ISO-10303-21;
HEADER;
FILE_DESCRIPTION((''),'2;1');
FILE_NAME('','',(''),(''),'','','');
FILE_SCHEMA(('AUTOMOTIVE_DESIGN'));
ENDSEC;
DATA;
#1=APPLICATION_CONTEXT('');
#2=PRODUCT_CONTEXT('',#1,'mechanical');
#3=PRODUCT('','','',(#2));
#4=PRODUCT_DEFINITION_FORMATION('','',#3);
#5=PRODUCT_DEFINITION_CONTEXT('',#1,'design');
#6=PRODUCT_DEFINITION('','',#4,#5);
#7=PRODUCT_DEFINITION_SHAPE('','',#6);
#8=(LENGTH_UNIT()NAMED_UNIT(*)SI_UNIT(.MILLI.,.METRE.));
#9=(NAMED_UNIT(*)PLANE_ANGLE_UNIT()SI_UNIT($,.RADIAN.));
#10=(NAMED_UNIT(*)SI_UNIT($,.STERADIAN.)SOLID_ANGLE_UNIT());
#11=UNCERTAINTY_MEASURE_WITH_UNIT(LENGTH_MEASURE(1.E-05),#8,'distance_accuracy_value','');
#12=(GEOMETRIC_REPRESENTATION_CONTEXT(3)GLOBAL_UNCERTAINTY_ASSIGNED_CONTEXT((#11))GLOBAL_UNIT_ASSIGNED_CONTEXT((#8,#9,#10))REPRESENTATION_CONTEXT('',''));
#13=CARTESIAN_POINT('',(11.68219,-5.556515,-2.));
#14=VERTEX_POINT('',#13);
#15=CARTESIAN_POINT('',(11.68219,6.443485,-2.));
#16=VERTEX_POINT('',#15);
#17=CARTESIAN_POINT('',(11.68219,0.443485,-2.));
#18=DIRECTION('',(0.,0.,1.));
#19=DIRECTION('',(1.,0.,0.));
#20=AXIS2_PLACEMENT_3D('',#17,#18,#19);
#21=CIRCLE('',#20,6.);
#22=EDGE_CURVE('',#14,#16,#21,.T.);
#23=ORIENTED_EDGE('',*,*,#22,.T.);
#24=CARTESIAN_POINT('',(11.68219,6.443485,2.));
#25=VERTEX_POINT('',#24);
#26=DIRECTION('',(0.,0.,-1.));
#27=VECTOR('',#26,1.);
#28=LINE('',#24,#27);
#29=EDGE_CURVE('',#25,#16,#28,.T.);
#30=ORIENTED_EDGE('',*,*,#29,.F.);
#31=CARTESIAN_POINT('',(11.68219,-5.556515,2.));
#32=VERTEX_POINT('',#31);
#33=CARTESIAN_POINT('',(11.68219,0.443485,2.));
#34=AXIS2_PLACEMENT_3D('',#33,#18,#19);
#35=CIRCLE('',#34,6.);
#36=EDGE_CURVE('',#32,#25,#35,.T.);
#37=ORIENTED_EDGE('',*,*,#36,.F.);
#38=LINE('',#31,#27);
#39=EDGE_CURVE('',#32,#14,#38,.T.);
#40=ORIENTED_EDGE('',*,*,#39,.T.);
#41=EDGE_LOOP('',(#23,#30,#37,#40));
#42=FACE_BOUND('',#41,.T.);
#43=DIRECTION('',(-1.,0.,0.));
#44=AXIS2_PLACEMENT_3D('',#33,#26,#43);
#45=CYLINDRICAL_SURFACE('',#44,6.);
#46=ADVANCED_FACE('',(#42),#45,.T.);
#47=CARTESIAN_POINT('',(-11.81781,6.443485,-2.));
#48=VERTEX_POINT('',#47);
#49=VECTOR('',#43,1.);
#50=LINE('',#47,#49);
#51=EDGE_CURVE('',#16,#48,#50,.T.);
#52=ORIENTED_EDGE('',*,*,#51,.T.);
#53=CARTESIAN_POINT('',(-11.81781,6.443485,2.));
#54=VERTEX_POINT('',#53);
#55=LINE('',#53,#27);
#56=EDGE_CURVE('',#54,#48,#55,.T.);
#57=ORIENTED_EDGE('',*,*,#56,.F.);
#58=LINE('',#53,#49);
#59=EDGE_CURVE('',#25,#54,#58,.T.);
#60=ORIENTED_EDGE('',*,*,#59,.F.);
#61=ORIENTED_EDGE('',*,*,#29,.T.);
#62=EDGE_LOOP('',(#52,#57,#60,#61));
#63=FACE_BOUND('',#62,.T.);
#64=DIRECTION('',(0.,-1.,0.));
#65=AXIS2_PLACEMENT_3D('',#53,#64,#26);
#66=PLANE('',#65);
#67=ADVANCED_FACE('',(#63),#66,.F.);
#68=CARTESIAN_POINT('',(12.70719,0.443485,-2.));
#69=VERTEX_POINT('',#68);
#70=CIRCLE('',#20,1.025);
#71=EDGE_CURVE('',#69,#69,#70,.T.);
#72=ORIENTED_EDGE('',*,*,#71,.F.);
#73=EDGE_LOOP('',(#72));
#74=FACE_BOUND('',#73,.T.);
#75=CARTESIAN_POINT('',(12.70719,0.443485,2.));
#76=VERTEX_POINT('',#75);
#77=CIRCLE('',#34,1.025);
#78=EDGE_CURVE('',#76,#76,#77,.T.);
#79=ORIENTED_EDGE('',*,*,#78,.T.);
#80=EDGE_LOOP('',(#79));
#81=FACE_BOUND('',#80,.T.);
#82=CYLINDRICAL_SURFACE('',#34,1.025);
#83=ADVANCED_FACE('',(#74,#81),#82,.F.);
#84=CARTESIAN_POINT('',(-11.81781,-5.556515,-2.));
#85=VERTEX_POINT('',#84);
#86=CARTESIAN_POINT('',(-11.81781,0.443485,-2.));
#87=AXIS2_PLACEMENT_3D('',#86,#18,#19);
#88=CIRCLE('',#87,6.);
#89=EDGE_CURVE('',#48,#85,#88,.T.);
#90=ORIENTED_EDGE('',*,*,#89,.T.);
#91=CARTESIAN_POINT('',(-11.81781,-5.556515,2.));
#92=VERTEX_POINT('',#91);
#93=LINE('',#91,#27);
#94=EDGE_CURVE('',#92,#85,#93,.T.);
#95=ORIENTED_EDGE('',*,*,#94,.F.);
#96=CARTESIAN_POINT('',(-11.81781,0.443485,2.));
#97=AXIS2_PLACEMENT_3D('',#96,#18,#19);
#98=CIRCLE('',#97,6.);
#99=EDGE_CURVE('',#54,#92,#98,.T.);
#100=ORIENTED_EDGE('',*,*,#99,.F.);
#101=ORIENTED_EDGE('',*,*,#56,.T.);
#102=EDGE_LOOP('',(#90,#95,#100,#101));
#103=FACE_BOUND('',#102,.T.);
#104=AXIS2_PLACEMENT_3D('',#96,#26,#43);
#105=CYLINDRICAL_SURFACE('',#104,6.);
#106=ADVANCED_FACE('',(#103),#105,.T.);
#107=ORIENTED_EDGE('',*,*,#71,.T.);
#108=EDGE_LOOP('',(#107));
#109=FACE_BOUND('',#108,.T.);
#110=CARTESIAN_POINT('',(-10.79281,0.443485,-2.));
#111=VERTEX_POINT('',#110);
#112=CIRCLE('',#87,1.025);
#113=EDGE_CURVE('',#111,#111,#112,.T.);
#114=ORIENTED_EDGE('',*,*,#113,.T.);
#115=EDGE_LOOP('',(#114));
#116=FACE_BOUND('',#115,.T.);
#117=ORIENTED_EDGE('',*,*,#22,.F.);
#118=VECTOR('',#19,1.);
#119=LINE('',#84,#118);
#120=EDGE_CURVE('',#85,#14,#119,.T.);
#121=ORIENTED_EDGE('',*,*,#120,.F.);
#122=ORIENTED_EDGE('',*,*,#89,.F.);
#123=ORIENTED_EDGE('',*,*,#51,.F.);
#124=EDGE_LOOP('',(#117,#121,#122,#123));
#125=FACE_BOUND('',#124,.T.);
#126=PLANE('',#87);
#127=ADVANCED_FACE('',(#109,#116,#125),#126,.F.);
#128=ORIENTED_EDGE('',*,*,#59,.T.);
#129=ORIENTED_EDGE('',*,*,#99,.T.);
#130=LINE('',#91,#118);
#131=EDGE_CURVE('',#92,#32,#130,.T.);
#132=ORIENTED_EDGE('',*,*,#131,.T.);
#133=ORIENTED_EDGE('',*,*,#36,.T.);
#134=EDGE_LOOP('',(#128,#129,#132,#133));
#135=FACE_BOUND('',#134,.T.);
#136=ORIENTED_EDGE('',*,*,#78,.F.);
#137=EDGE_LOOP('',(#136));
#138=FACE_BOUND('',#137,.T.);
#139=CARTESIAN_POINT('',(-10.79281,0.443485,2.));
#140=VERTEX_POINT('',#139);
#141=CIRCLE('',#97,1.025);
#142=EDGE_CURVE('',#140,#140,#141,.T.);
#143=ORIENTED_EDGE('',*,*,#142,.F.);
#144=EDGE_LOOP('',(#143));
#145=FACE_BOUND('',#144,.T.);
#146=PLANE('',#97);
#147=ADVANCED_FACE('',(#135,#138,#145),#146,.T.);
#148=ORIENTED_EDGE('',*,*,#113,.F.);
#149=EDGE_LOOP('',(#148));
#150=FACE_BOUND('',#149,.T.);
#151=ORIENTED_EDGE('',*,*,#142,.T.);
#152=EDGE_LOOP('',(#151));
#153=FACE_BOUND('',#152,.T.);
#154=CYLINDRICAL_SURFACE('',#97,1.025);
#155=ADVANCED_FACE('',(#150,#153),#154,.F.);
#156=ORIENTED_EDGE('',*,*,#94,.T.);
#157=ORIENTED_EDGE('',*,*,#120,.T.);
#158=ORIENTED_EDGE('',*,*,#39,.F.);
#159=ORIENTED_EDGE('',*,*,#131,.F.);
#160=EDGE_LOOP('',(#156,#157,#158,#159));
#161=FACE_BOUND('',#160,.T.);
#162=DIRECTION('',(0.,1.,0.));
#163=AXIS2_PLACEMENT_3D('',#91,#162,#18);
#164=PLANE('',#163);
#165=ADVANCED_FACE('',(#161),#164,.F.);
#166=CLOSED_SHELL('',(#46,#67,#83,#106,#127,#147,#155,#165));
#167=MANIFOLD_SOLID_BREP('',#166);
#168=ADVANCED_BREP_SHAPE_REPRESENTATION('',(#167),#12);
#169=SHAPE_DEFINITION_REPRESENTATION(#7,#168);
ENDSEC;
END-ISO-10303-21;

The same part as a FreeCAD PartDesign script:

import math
import FreeCAD as App
import Part
import Sketcher
from FreeCAD import Vector
Q = App.Units.Quantity

doc = App.newDocument("Part")
body = doc.addObject("PartDesign::Body", "Body")

# Sketch on XY plane
sketch1 = doc.addObject("Sketcher::SketchObject", "Sketch")
body.addObject(sketch1)
sketch1.AttachmentSupport = (doc.XY_Plane, [""])
sketch1.MapMode = "FlatFace"
sketch1.addGeometry([
    Part.LineSegment(Vector(11.68219, 6.443485, 0), Vector(-11.81781, 6.443485, 0)),
    Part.ArcOfCircle(Part.Circle(Vector(-11.81781, 0.443485, 0), Vector(0, 0, 1), 6), math.radians(90), math.radians(270)),
    Part.LineSegment(Vector(-11.81781, -5.556515, 0), Vector(11.68219, -5.556515, 0)),
    Part.ArcOfCircle(Part.Circle(Vector(11.68219, 0.443485, 0), Vector(0, 0, 1), 6), math.radians(-90), math.radians(90)),
], False)
sketch1.addConstraint([
    Sketcher.Constraint("Tangent", 0, 2, 1, 1),
    Sketcher.Constraint("Tangent", 1, 2, 2, 1),
    Sketcher.Constraint("Tangent", 2, 2, 3, 1),
    Sketcher.Constraint("Tangent", 3, 2, 0, 1),
    Sketcher.Constraint("Horizontal", 0),
    Sketcher.Constraint("Horizontal", 2),
    Sketcher.Constraint("Radius", 1, Q("6 mm")),
    Sketcher.Constraint("DistanceX", 0, 2, 0, 1, Q("23.5 mm")),
    Sketcher.Constraint("DistanceX", 1, 3, -1, 1, Q("11.81781 mm")),
    Sketcher.Constraint("DistanceY", -1, 1, 1, 3, Q("0.443485 mm")),
])
pad1 = doc.addObject("PartDesign::Pad", "Pad")
body.addObject(pad1)
pad1.Profile = sketch1
pad1.Length = 4
pad1.Midplane = True

# Sketch on XY plane
sketch2 = doc.addObject("Sketcher::SketchObject", "Sketch001")
body.addObject(sketch2)
sketch2.AttachmentSupport = (doc.XY_Plane, [""])
sketch2.MapMode = "FlatFace"
sketch2.AttachmentOffset = App.Placement(Vector(0, 0, 2), App.Rotation())
sketch2.addGeometry([
    Part.Circle(Vector(-11.81781, 0.443485, 0), Vector(0, 0, 1), 1.025),
    Part.Circle(Vector(11.68219, 0.443485, 0), Vector(0, 0, 1), 1.025),
], False)
sketch2.addConstraint([
    Sketcher.Constraint("Equal", 0, 1),
    Sketcher.Constraint("Horizontal", 0, 3, 1, 3),
    Sketcher.Constraint("Diameter", 0, Q("2.05 mm")),
    Sketcher.Constraint("DistanceX", 0, 3, 1, 3, Q("23.5 mm")),
    Sketcher.Constraint("DistanceX", 0, 3, -1, 1, Q("11.81781 mm")),
    Sketcher.Constraint("DistanceY", -1, 1, 0, 3, Q("0.443485 mm")),
])
doc.recompute()
hole = doc.addObject("PartDesign::Hole", "Hole")
body.addObject(hole)
hole.Profile = sketch2
hole.ThreadType = "None"
hole.Diameter = 2.05
hole.DepthType = "ThroughAll"

doc.recompute()
